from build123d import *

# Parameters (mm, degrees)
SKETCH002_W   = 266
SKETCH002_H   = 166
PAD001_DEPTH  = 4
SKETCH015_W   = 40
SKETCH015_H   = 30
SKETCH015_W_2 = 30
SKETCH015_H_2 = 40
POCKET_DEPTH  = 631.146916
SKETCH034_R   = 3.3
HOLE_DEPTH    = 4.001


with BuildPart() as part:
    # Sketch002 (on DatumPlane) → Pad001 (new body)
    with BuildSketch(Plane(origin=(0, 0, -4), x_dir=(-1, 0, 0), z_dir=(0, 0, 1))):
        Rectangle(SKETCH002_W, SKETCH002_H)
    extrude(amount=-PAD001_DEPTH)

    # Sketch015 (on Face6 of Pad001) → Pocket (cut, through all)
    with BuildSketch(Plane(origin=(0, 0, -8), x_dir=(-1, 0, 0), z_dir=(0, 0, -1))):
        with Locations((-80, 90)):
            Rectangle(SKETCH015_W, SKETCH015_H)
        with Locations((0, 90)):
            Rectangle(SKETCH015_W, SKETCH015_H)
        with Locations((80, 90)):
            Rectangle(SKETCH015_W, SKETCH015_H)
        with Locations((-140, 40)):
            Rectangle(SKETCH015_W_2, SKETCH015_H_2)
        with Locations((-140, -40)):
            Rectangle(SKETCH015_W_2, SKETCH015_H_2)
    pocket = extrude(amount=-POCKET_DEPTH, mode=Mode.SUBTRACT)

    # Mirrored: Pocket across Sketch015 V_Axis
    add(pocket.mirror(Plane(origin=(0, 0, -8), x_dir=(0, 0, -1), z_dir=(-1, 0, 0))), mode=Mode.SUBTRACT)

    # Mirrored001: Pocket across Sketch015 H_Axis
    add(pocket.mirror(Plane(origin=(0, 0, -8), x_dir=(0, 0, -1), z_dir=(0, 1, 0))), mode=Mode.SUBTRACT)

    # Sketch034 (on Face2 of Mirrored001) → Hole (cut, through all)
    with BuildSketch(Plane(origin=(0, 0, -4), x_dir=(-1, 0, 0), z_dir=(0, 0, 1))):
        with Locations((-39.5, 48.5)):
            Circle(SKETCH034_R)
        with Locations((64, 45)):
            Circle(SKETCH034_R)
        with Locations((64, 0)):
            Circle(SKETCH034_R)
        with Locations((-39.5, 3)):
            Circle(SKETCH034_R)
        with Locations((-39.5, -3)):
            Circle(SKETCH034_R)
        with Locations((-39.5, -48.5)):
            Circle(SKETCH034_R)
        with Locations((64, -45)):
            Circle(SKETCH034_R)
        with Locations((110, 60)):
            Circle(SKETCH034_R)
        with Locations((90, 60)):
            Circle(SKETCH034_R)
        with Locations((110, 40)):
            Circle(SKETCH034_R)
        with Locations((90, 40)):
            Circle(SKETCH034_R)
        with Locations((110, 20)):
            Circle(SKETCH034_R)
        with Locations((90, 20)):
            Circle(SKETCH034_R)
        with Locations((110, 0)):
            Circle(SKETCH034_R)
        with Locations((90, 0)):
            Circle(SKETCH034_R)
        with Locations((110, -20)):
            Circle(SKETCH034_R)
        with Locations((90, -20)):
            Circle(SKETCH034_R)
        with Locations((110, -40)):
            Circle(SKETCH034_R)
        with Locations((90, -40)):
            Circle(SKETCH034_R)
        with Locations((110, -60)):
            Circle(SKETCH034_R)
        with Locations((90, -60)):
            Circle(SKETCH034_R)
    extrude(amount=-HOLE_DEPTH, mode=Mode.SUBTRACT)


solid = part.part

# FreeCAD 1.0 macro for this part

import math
import FreeCAD as App
import Part
import Sketcher
from FreeCAD import Vector
Q = App.Units.Quantity

doc = App.newDocument("Part")
body = doc.addObject("PartDesign::Body", "Body")

sketch1 = doc.addObject("Sketcher::SketchObject", "Sketch")
body.addObject(sketch1)
sketch1.AttachmentSupport = (doc.XY_Plane, [""])
sketch1.MapMode = "FlatFace"
sketch1.AttachmentOffset = App.Placement(Vector(0, 0, -4), App.Rotation())
sketch1.addGeometry([
    Part.LineSegment(Vector(133, -83, 0), Vector(133, 83, 0)),
    Part.LineSegment(Vector(133, 83, 0), Vector(-133, 83, 0)),
    Part.LineSegment(Vector(-133, 83, 0), Vector(-133, -83, 0)),
    Part.LineSegment(Vector(-133, -83, 0), Vector(133, -83, 0)),
], False)
sketch1.addConstraint([
    Sketcher.Constraint("Coincident", 0, 2, 1, 1),
    Sketcher.Constraint("Coincident", 1, 2, 2, 1),
    Sketcher.Constraint("Coincident", 2, 2, 3, 1),
    Sketcher.Constraint("Coincident", 3, 2, 0, 1),
    Sketcher.Constraint("Vertical", 0),
    Sketcher.Constraint("Horizontal", 1),
    Sketcher.Constraint("Vertical", 2),
    Sketcher.Constraint("Horizontal", 3),
    Sketcher.Constraint("Symmetric", 0, 2, 2, 2, -1, 1),
    Sketcher.Constraint("DistanceX", 1, 2, 1, 1, Q("266 mm")),
    Sketcher.Constraint("DistanceY", 0, 1, 0, 2, Q("166 mm")),
])
pad1 = doc.addObject("PartDesign::Pad", "Pad")
body.addObject(pad1)
pad1.Profile = sketch1
pad1.Length = 4
pad1.Reversed = True

sketch2 = doc.addObject("Sketcher::SketchObject", "Sketch001")
body.addObject(sketch2)
sketch2.AttachmentSupport = (doc.XY_Plane, [""])
sketch2.MapMode = "FlatFace"
sketch2.AttachmentOffset = App.Placement(Vector(0, 0, -8), App.Rotation())
sketch2.addGeometry([
    Part.LineSegment(Vector(100, 105, 0), Vector(100, 75, 0)),
    Part.LineSegment(Vector(100, 75, 0), Vector(60, 75, 0)),
    Part.LineSegment(Vector(60, 75, 0), Vector(60, 105, 0)),
    Part.LineSegment(Vector(60, 105, 0), Vector(100, 105, 0)),
    Part.LineSegment(Vector(20, 105, 0), Vector(20, 75, 0)),
    Part.LineSegment(Vector(20, 75, 0), Vector(-20, 75, 0)),
    Part.LineSegment(Vector(-20, 75, 0), Vector(-20, 105, 0)),
    Part.LineSegment(Vector(-20, 105, 0), Vector(20, 105, 0)),
    Part.LineSegment(Vector(-60, 105, 0), Vector(-60, 75, 0)),
    Part.LineSegment(Vector(-60, 75, 0), Vector(-100, 75, 0)),
    Part.LineSegment(Vector(-100, 75, 0), Vector(-100, 105, 0)),
    Part.LineSegment(Vector(-100, 105, 0), Vector(-60, 105, 0)),
    Part.LineSegment(Vector(155, 60, 0), Vector(155, 20, 0)),
    Part.LineSegment(Vector(155, 20, 0), Vector(125, 20, 0)),
    Part.LineSegment(Vector(125, 20, 0), Vector(125, 60, 0)),
    Part.LineSegment(Vector(125, 60, 0), Vector(155, 60, 0)),
    Part.LineSegment(Vector(155, -20, 0), Vector(155, -60, 0)),
    Part.LineSegment(Vector(155, -60, 0), Vector(125, -60, 0)),
    Part.LineSegment(Vector(125, -60, 0), Vector(125, -20, 0)),
    Part.LineSegment(Vector(125, -20, 0), Vector(155, -20, 0)),
], False)
sketch2.addConstraint([
    Sketcher.Constraint("Coincident", 0, 2, 1, 1),
    Sketcher.Constraint("Coincident", 1, 2, 2, 1),
    Sketcher.Constraint("Coincident", 2, 2, 3, 1),
    Sketcher.Constraint("Coincident", 3, 2, 0, 1),
    Sketcher.Constraint("Coincident", 4, 2, 5, 1),
    Sketcher.Constraint("Coincident", 5, 2, 6, 1),
    Sketcher.Constraint("Coincident", 6, 2, 7, 1),
    Sketcher.Constraint("Coincident", 7, 2, 4, 1),
    Sketcher.Constraint("Coincident", 8, 2, 9, 1),
    Sketcher.Constraint("Coincident", 9, 2, 10, 1),
    Sketcher.Constraint("Coincident", 10, 2, 11, 1),
    Sketcher.Constraint("Coincident", 11, 2, 8, 1),
    Sketcher.Constraint("Coincident", 12, 2, 13, 1),
    Sketcher.Constraint("Coincident", 13, 2, 14, 1),
    Sketcher.Constraint("Coincident", 14, 2, 15, 1),
    Sketcher.Constraint("Coincident", 15, 2, 12, 1),
    Sketcher.Constraint("Coincident", 16, 2, 17, 1),
    Sketcher.Constraint("Coincident", 17, 2, 18, 1),
    Sketcher.Constraint("Coincident", 18, 2, 19, 1),
    Sketcher.Constraint("Coincident", 19, 2, 16, 1),
    Sketcher.Constraint("Vertical", 0),
    Sketcher.Constraint("Horizontal", 1),
    Sketcher.Constraint("Vertical", 2),
    Sketcher.Constraint("Horizontal", 3),
    Sketcher.Constraint("Vertical", 4),
    Sketcher.Constraint("Horizontal", 5),
    Sketcher.Constraint("Vertical", 6),
    Sketcher.Constraint("Horizontal", 7),
    Sketcher.Constraint("Vertical", 8),
    Sketcher.Constraint("Horizontal", 9),
    Sketcher.Constraint("Vertical", 10),
    Sketcher.Constraint("Horizontal", 11),
    Sketcher.Constraint("Vertical", 12),
    Sketcher.Constraint("Horizontal", 13),
    Sketcher.Constraint("Vertical", 14),
    Sketcher.Constraint("Horizontal", 15),
    Sketcher.Constraint("Vertical", 16),
    Sketcher.Constraint("Horizontal", 17),
    Sketcher.Constraint("Vertical", 18),
    Sketcher.Constraint("Horizontal", 19),
    Sketcher.Constraint("Symmetric", 1, 2, 8, 2, -2),
    Sketcher.Constraint("Symmetric", 3, 2, 10, 2, -2),
    Sketcher.Constraint("Symmetric", 15, 2, 16, 2, -1),
    Sketcher.Constraint("Symmetric", 13, 2, 18, 2, -1),
    Sketcher.Constraint("Horizontal", 1, 2, 4, 2),
    Sketcher.Constraint("Horizontal", 3, 2, 6, 2),
    Sketcher.Constraint("Equal", 3, 5),
    Sketcher.Constraint("Equal", 19, 0),
    Sketcher.Constraint("Equal", 11, 12),
    Sketcher.Constraint("DistanceX", 1, 2, 1, 1, Q("40 mm")),
    Sketcher.Constraint("DistanceX", 13, 2, 13, 1, Q("30 mm")),
    Sketcher.Constraint("DistanceX", -1, 1, 0, 2, Q("100 mm")),
    Sketcher.Constraint("DistanceY", -1, 1, 0, 2, Q("75 mm")),
    Sketcher.Constraint("DistanceX", -1, 1, 4, 2, Q("20 mm")),
    Sketcher.Constraint("DistanceX", -1, 1, 12, 2, Q("155 mm")),
    Sketcher.Constraint("DistanceY", -1, 1, 12, 2, Q("20 mm")),
])
pocket1 = doc.addObject("PartDesign::Pocket", "Pocket")
body.addObject(pocket1)
pocket1.Profile = sketch2
pocket1.Type = "ThroughAll"
pocket1.Reversed = True
doc.recompute()

mirrored = doc.addObject("PartDesign::Mirrored", "Mirrored")
body.addObject(mirrored)
mirrored.Originals = [pocket1]
mirrored.MirrorPlane = (doc.YZ_Plane, [""])
body.Tip = mirrored
doc.recompute()

mirrored2 = doc.addObject("PartDesign::Mirrored", "Mirrored001")
body.addObject(mirrored2)
mirrored2.Originals = [pocket1]
mirrored2.MirrorPlane = (doc.XZ_Plane, [""])
body.Tip = mirrored2

sketch3 = doc.addObject("Sketcher::SketchObject", "Sketch002")
body.addObject(sketch3)
sketch3.AttachmentSupport = (doc.XY_Plane, [""])
sketch3.MapMode = "FlatFace"
sketch3.AttachmentOffset = App.Placement(Vector(0, 0, -4), App.Rotation())
sketch3.addGeometry([
    Part.Circle(Vector(39.5, -48.5, 0), Vector(0, 0, 1), 3.3),
    Part.Circle(Vector(-64, -45, 0), Vector(0, 0, 1), 3.3),
    Part.Circle(Vector(-64, 0, 0), Vector(0, 0, 1), 3.3),
    Part.ArcOfCircle(Part.Circle(Vector(39.5, -3, 0), Vector(0, 0, 1), 3.3), math.radians(114.619977), math.radians(425.380023)),
    Part.ArcOfCircle(Part.Circle(Vector(39.5, 3, 0), Vector(0, 0, 1), 3.3), math.radians(-65.380023), math.radians(245.380023)),
    Part.Circle(Vector(39.5, 48.5, 0), Vector(0, 0, 1), 3.3),
    Part.Circle(Vector(-64, 45, 0), Vector(0, 0, 1), 3.3),
    Part.Circle(Vector(-110, -60, 0), Vector(0, 0, 1), 3.3),
    Part.Circle(Vector(-90, -60, 0), Vector(0, 0, 1), 3.3),
    Part.Circle(Vector(-110, -40, 0), Vector(0, 0, 1), 3.3),
    Part.Circle(Vector(-90, -40, 0), Vector(0, 0, 1), 3.3),
    Part.Circle(Vector(-110, -20, 0), Vector(0, 0, 1), 3.3),
    Part.Circle(Vector(-90, -20, 0), Vector(0, 0, 1), 3.3),
    Part.Circle(Vector(-110, 0, 0), Vector(0, 0, 1), 3.3),
    Part.Circle(Vector(-90, 0, 0), Vector(0, 0, 1), 3.3),
    Part.Circle(Vector(-110, 20, 0), Vector(0, 0, 1), 3.3),
    Part.Circle(Vector(-90, 20, 0), Vector(0, 0, 1), 3.3),
    Part.Circle(Vector(-110, 40, 0), Vector(0, 0, 1), 3.3),
    Part.Circle(Vector(-90, 40, 0), Vector(0, 0, 1), 3.3),
    Part.Circle(Vector(-110, 60, 0), Vector(0, 0, 1), 3.3),
    Part.Circle(Vector(-90, 60, 0), Vector(0, 0, 1), 3.3),
], False)
sketch3.addConstraint([
    Sketcher.Constraint("Coincident", 3, 1, 4, 2),
    Sketcher.Constraint("Coincident", 4, 1, 3, 2),
    Sketcher.Constraint("Equal", 0, 1),
    Sketcher.Constraint("Equal", 1, 2),
    Sketcher.Constraint("Equal", 2, 3),
    Sketcher.Constraint("Equal", 3, 4),
    Sketcher.Constraint("Equal", 4, 5),
    Sketcher.Constraint("Equal", 5, 6),
    Sketcher.Constraint("Equal", 6, 7),
    Sketcher.Constraint("Equal", 7, 8),
    Sketcher.Constraint("Equal", 8, 9),
    Sketcher.Constraint("Equal", 9, 10),
    Sketcher.Constraint("Equal", 10, 11),
    Sketcher.Constraint("Equal", 11, 12),
    Sketcher.Constraint("Equal", 12, 13),
    Sketcher.Constraint("Equal", 13, 14),
    Sketcher.Constraint("Equal", 14, 15),
    Sketcher.Constraint("Equal", 15, 16),
    Sketcher.Constraint("Equal", 16, 17),
    Sketcher.Constraint("Equal", 17, 18),
    Sketcher.Constraint("Equal", 18, 19),
    Sketcher.Constraint("Equal", 19, 20),
    Sketcher.Constraint("Symmetric", 3, 3, 4, 3, -1),
    Sketcher.Constraint("Symmetric", 0, 3, 5, 3, -1),
    Sketcher.Constraint("Symmetric", 1, 3, 6, 3, -1),
    Sketcher.Constraint("Symmetric", 11, 3, 15, 3, -1),
    Sketcher.Constraint("Symmetric", 12, 3, 16, 3, -1),
    Sketcher.Constraint("Symmetric", 9, 3, 17, 3, -1),
    Sketcher.Constraint("Symmetric", 10, 3, 18, 3, -1),
    Sketcher.Constraint("Symmetric", 7, 3, 19, 3, -1),
    Sketcher.Constraint("Symmetric", 8, 3, 20, 3, -1),
    Sketcher.Constraint("PointOnObject", 2, 3, -1),
    Sketcher.Constraint("PointOnObject", 13, 3, -1),
    Sketcher.Constraint("PointOnObject", 14, 3, -1),
    Sketcher.Constraint("Horizontal", 7, 3, 8, 3),
    Sketcher.Constraint("Horizontal", 9, 3, 10, 3),
    Sketcher.Constraint("Horizontal", 11, 3, 12, 3),
    Sketcher.Constraint("Vertical", 1, 3, 2, 3),
    Sketcher.Constraint("Vertical", 0, 3, 3, 3),
    Sketcher.Constraint("Vertical", 7, 3, 9, 3),
    Sketcher.Constraint("Vertical", 8, 3, 10, 3),
    Sketcher.Constraint("Vertical", 9, 3, 11, 3),
    Sketcher.Constraint("Vertical", 10, 3, 12, 3),
    Sketcher.Constraint("Vertical", 11, 3, 13, 3),
    Sketcher.Constraint("Vertical", 12, 3, 14, 3),
    Sketcher.Constraint("Diameter", 0, Q("6.6 mm")),
    Sketcher.Constraint("DistanceX", 1, 3, -1, 1, Q("64 mm")),
    Sketcher.Constraint("DistanceY", 1, 3, -1, 1, Q("45 mm")),
    Sketcher.Constraint("DistanceY", 3, 3, -1, 1, Q("3 mm")),
    Sketcher.Constraint("DistanceX", 7, 3, -1, 1, Q("110 mm")),
    Sketcher.Constraint("DistanceY", 7, 3, -1, 1, Q("60 mm")),
    Sketcher.Constraint("DistanceX", 8, 3, -1, 1, Q("90 mm")),
    Sketcher.Constraint("DistanceY", 9, 3, -1, 1, Q("40 mm")),
    Sketcher.Constraint("DistanceY", 11, 3, -1, 1, Q("20 mm")),
    Sketcher.Constraint("DistanceY", 0, 3, 5, 3, Q("97 mm")),
    Sketcher.Constraint("DistanceX", -1, 1, 0, 3, Q("39.5 mm")),
])
pocket2 = doc.addObject("PartDesign::Pocket", "Pocket001")
body.addObject(pocket2)
pocket2.Profile = sketch3
pocket2.Type = "ThroughAll"

doc.recompute()
